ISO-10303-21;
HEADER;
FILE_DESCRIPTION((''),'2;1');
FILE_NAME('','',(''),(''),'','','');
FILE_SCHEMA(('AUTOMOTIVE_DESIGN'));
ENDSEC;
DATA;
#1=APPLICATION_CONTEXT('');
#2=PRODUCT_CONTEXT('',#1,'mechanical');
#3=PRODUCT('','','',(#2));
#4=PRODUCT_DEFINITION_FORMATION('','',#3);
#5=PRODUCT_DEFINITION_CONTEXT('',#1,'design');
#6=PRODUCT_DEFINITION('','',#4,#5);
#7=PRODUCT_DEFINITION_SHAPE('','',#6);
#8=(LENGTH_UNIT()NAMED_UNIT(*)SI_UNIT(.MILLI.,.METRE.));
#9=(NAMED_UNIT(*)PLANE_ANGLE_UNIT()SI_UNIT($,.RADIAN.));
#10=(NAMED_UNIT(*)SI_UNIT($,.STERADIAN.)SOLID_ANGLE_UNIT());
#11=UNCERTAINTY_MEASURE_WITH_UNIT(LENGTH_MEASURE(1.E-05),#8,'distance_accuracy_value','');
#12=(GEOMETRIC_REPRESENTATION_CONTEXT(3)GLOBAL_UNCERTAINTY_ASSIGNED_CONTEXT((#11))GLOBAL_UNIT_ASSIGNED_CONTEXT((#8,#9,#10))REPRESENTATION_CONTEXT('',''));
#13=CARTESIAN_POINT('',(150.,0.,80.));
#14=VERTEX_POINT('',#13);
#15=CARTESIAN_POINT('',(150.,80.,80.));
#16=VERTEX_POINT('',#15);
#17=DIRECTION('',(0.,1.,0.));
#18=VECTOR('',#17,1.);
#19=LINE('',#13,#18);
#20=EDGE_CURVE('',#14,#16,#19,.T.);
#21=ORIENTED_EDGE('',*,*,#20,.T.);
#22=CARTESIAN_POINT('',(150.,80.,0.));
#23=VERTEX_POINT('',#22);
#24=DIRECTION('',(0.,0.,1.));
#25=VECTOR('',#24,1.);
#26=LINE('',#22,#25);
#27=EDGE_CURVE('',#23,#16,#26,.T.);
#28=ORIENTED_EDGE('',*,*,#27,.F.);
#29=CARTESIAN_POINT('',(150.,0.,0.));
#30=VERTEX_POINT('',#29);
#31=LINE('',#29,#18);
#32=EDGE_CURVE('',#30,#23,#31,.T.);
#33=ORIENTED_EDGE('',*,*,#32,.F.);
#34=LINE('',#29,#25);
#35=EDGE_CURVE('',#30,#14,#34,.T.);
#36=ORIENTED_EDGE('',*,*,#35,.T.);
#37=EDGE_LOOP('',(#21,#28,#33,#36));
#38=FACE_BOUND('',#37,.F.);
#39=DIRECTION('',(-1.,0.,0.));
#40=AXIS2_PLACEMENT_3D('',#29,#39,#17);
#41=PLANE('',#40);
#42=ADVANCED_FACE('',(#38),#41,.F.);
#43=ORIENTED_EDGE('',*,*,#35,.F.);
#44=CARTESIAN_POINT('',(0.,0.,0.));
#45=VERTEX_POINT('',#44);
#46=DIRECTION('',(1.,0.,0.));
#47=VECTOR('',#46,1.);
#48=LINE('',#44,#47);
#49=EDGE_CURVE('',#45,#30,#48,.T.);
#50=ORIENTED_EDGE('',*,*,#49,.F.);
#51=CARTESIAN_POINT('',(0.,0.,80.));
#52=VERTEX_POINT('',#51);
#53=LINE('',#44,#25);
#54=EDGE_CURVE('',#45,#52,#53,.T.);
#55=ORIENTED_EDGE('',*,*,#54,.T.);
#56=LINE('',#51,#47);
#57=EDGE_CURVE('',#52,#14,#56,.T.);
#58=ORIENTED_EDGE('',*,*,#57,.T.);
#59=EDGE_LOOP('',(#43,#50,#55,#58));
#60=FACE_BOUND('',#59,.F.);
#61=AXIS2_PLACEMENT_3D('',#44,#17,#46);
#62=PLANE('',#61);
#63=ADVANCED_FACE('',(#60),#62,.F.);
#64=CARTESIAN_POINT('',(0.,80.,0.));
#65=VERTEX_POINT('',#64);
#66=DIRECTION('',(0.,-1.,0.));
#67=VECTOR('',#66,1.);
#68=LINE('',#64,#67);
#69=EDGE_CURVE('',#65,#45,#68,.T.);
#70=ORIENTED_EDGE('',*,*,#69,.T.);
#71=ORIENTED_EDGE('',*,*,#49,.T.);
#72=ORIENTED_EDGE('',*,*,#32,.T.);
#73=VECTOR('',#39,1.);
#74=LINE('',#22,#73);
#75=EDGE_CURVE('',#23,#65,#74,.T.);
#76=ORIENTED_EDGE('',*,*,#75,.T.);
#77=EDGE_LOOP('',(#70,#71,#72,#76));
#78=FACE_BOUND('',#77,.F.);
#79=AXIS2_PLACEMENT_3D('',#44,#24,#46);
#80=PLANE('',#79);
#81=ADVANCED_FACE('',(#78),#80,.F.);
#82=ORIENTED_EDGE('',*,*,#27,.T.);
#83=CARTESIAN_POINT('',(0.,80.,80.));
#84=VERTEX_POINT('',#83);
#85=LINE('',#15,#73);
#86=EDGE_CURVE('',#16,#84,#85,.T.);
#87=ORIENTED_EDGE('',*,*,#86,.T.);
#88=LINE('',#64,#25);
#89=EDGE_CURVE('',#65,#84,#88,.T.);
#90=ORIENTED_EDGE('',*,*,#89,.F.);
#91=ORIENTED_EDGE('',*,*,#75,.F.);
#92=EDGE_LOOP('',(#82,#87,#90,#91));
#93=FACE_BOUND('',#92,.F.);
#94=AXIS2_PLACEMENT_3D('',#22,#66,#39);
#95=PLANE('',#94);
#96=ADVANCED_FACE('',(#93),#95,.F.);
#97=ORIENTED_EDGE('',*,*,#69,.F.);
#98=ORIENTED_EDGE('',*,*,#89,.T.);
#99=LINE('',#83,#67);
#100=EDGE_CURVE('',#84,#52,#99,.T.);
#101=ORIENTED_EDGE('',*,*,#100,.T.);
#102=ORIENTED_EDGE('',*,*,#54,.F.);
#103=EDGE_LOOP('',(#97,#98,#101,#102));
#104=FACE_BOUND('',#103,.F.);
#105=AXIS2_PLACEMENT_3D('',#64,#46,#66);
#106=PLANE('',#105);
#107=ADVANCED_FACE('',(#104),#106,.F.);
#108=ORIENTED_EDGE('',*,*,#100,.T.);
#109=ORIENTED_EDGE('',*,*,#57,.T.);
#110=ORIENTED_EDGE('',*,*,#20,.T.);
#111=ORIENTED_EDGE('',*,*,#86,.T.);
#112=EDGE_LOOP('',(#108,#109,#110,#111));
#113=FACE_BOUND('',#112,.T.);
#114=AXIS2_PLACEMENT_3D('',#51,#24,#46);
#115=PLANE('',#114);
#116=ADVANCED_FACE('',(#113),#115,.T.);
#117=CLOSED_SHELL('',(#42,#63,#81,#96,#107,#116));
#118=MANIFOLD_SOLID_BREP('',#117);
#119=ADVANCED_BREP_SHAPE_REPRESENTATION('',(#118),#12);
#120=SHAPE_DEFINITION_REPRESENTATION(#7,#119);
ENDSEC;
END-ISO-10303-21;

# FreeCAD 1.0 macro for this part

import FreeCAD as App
import Part
import Sketcher
Q = App.Units.Quantity

doc = App.newDocument("Part")
body = doc.addObject("PartDesign::Body", "Body")

# Sketch on XY plane
sketch1 = body.newObject("Sketcher::SketchObject", "Sketch")
sketch1.AttachmentSupport = (doc.getObject("XY_Plane"), [""])
sketch1.MapMode = "FlatFace"
sketch1.addGeometry(Part.LineSegment(App.Vector(0, 80, 0), App.Vector(0, 0, 0)), False)
sketch1.addGeometry(Part.LineSegment(App.Vector(0, 0, 0), App.Vector(150, 0, 0)), False)
sketch1.addGeometry(Part.LineSegment(App.Vector(150, 0, 0), App.Vector(150, 80, 0)), False)
sketch1.addGeometry(Part.LineSegment(App.Vector(150, 80, 0), App.Vector(0, 80, 0)), False)
sketch1.addConstraint(Sketcher.Constraint("Coincident", 0, 2, 1, 1))
sketch1.addConstraint(Sketcher.Constraint("Coincident", 1, 2, 2, 1))
sketch1.addConstraint(Sketcher.Constraint("Coincident", 2, 2, 3, 1))
sketch1.addConstraint(Sketcher.Constraint("Coincident", 3, 2, 0, 1))
sketch1.addConstraint(Sketcher.Constraint("Vertical", 0))
sketch1.addConstraint(Sketcher.Constraint("Horizontal", 1))
sketch1.addConstraint(Sketcher.Constraint("Vertical", 2))
sketch1.addConstraint(Sketcher.Constraint("Horizontal", 3))
sketch1.addConstraint(Sketcher.Constraint("Coincident", 0, 2, -1, 1))
sketch1.addConstraint(Sketcher.Constraint("DistanceX", 1, 1, 1, 2, Q("150 mm")))
sketch1.addConstraint(Sketcher.Constraint("DistanceY", 0, 2, 0, 1, Q("80 mm")))
pad1 = body.newObject("PartDesign::Pad", "Pad")
pad1.Profile = sketch1
pad1.Length = 80

doc.recompute()
